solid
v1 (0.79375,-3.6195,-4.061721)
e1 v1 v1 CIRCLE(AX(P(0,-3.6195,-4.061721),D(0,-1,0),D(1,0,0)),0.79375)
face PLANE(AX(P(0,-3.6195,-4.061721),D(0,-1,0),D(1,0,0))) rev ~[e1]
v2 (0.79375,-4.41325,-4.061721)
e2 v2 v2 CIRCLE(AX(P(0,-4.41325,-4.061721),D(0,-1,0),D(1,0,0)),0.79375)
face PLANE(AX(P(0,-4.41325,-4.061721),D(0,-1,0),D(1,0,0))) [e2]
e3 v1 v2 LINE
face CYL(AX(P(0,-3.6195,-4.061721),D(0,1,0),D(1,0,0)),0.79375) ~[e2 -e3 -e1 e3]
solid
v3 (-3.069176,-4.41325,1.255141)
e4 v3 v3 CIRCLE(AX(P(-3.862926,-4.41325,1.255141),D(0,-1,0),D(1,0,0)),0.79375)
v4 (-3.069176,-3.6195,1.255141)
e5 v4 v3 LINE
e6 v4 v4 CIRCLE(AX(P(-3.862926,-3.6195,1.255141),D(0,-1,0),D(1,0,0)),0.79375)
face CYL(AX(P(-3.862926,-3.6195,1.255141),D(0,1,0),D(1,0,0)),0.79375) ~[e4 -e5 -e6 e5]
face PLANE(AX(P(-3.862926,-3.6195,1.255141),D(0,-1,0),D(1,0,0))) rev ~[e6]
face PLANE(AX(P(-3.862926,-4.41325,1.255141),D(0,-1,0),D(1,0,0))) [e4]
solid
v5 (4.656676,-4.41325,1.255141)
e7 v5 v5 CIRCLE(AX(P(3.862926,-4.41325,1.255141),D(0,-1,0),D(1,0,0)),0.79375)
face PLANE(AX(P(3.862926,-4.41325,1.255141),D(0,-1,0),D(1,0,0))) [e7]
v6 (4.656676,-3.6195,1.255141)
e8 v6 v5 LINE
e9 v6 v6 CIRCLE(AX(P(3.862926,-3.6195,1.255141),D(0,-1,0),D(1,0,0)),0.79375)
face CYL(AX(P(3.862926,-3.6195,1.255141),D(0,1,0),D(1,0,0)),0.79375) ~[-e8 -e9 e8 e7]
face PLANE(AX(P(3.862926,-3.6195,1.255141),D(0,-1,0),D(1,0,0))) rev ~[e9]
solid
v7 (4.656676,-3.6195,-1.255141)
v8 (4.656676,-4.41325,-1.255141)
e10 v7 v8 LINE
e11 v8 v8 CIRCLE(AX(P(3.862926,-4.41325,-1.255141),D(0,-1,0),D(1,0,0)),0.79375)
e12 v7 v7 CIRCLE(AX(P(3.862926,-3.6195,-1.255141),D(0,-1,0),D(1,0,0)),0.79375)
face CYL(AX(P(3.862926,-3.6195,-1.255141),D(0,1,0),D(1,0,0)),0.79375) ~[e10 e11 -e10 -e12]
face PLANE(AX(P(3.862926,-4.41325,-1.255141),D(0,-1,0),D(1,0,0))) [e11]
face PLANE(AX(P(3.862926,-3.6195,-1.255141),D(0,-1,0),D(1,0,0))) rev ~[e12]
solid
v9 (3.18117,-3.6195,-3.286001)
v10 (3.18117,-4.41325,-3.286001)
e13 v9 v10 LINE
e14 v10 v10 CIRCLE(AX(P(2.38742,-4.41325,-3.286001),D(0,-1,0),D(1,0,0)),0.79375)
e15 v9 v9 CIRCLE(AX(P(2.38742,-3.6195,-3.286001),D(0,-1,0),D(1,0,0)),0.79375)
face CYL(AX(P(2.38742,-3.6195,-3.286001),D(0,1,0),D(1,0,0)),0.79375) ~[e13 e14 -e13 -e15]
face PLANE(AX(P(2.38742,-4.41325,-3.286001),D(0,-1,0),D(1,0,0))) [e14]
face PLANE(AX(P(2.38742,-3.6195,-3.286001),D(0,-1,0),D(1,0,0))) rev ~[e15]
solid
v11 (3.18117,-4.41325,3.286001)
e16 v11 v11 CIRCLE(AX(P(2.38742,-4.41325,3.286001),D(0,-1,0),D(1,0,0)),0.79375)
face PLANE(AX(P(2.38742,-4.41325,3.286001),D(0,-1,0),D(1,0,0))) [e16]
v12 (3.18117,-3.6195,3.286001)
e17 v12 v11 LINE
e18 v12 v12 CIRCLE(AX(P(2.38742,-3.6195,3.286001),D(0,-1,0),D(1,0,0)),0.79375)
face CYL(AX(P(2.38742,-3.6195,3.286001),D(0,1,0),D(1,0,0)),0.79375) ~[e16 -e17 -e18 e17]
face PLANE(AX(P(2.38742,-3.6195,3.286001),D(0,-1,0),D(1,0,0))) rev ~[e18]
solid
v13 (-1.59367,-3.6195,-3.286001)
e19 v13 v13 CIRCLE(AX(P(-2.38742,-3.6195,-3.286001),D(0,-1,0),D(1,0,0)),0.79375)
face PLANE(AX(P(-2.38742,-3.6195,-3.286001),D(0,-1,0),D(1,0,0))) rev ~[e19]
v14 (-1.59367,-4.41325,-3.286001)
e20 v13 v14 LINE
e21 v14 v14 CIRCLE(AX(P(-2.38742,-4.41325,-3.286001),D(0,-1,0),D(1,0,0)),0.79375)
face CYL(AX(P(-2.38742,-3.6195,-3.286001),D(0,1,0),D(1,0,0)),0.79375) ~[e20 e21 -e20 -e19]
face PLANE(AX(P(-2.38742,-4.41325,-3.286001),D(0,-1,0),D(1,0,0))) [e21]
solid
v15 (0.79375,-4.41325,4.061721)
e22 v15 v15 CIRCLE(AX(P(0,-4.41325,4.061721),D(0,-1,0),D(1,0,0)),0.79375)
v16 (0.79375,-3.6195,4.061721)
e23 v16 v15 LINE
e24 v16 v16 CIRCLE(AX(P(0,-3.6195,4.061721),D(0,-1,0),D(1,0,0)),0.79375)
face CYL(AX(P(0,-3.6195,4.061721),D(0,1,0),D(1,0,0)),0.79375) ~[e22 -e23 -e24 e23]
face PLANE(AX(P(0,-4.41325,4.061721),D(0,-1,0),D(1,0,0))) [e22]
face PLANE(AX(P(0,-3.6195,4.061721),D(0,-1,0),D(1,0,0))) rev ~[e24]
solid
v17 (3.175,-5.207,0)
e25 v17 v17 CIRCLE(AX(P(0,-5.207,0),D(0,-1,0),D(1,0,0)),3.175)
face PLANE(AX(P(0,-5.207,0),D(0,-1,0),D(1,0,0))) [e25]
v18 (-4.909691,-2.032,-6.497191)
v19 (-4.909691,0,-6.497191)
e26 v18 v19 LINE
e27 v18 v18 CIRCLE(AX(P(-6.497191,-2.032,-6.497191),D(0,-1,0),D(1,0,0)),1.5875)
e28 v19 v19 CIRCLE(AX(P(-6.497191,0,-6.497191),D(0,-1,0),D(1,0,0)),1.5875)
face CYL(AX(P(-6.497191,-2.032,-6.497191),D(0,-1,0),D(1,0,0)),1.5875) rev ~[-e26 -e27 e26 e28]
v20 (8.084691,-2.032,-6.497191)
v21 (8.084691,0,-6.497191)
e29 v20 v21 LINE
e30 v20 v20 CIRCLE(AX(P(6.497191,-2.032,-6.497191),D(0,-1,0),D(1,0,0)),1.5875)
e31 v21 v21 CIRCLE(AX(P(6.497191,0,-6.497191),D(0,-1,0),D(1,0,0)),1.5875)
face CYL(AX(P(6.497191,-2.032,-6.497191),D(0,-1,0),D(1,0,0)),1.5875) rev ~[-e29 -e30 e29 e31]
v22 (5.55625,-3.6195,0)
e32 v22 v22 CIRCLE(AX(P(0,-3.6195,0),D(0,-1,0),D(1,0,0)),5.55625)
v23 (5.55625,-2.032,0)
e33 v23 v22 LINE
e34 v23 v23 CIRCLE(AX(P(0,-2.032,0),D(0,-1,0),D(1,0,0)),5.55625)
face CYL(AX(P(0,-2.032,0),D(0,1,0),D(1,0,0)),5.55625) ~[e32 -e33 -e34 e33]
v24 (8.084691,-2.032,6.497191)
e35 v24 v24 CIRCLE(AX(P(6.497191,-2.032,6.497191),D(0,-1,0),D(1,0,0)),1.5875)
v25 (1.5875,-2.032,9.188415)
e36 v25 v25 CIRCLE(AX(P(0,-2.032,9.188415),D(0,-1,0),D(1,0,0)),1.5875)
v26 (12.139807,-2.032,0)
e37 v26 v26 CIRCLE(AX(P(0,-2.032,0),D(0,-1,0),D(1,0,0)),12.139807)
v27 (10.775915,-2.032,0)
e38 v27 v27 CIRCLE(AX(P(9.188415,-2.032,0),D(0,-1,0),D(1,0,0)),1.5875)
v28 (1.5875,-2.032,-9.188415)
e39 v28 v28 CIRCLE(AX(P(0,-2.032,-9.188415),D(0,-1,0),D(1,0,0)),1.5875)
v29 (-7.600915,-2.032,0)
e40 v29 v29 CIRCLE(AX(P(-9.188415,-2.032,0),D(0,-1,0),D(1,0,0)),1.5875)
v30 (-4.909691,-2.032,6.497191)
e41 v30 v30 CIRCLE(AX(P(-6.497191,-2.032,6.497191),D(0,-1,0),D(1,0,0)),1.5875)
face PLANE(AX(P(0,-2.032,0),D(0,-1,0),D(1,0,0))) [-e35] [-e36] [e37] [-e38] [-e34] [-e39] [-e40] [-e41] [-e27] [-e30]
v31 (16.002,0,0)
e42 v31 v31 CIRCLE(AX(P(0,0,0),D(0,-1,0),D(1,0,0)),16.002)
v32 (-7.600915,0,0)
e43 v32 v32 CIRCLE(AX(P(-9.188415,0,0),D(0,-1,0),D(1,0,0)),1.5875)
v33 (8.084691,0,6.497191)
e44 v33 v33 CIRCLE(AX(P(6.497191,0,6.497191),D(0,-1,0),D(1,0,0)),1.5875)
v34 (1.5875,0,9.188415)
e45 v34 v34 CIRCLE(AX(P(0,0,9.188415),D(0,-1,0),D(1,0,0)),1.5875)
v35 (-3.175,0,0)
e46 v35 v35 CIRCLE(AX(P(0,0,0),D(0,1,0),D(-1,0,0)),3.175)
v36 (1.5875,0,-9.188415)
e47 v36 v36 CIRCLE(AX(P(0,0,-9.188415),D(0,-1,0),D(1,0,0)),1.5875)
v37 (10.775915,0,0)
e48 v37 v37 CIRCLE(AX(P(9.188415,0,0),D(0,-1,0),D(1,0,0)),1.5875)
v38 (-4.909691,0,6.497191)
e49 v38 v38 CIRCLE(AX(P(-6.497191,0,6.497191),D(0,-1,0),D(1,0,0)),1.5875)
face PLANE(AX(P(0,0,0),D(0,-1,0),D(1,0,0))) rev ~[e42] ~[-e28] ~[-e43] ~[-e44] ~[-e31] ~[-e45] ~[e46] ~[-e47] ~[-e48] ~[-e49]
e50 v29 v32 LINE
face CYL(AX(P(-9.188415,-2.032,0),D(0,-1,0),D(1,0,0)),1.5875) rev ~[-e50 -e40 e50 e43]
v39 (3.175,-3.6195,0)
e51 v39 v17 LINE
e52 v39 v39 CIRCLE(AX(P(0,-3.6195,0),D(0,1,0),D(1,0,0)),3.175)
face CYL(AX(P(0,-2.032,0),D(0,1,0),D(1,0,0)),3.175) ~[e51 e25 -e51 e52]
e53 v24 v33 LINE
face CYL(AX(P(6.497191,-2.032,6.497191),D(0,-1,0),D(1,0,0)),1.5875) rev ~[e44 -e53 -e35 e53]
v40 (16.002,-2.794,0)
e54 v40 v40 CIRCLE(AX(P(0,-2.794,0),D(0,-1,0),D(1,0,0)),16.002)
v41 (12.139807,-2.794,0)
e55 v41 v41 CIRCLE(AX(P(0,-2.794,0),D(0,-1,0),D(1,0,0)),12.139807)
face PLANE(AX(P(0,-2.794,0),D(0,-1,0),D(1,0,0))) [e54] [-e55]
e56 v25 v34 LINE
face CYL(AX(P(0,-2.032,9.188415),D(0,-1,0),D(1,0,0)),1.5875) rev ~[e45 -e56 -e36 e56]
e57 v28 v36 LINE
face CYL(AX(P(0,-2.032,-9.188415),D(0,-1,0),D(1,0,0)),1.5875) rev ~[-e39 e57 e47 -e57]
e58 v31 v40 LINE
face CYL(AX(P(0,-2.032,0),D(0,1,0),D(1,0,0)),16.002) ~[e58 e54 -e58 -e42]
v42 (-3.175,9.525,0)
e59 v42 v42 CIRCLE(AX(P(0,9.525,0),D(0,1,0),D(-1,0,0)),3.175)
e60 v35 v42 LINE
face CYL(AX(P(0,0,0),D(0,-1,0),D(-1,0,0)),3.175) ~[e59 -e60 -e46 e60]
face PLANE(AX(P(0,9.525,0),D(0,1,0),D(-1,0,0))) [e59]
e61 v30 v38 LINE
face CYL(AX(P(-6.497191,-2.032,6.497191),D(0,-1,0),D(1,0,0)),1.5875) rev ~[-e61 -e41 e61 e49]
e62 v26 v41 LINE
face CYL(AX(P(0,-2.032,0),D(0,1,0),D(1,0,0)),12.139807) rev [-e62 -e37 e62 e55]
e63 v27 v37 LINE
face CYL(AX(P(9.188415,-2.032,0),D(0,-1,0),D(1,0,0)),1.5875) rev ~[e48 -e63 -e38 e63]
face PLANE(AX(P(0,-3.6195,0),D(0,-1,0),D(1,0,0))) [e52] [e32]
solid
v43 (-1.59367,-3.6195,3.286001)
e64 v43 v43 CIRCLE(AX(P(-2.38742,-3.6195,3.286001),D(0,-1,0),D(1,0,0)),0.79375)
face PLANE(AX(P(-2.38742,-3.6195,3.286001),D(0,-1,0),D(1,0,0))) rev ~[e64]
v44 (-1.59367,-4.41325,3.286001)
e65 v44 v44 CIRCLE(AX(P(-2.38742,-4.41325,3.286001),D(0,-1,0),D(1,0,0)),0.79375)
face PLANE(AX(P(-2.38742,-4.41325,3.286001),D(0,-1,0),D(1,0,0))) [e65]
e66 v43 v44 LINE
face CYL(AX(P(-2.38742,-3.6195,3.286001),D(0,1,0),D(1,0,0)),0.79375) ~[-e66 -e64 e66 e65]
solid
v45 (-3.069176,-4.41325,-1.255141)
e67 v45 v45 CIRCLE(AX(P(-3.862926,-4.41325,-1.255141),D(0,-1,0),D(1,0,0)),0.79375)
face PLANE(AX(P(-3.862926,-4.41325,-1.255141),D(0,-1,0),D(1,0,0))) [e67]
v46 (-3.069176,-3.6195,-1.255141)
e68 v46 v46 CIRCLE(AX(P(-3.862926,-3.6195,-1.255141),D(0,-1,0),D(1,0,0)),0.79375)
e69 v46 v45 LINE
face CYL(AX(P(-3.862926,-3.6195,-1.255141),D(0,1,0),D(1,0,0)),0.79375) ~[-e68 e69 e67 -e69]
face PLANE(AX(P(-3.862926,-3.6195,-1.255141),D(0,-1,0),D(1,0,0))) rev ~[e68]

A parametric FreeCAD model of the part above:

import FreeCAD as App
import Part
import Sketcher

V = App.Vector
Q = App.Units.Quantity

doc = App.newDocument("Part")
body = doc.addObject("PartDesign::Body", "Body")

# Sketch on XZ plane
sketch1 = doc.addObject("Sketcher::SketchObject", "Sketch")
body.addObject(sketch1)
sketch1.AttachmentSupport = (doc.XZ_Plane, [""])
sketch1.MapMode = "FlatFace"
sketch1.addGeometry(Part.Circle(V(0, 0, 0), V(0, 0, 1), 16), False)
sketch1.addConstraint(Sketcher.Constraint("Coincident", 0, 3, -1, 1))
sketch1.addConstraint(Sketcher.Constraint("Diameter", 0, Q("1.26 in")))
pad1 = doc.addObject("PartDesign::Pad", "Pad")
body.addObject(pad1)
pad1.Profile = sketch1
pad1.Length = Q("0.08 in")

# Sketch on XZ plane
sketch2 = doc.addObject("Sketcher::SketchObject", "Sketch001")
body.addObject(sketch2)
sketch2.AttachmentSupport = (doc.XZ_Plane, [""])
sketch2.MapMode = "FlatFace"
sketch2.AttachmentOffset = App.Placement(V(0, 0, 0.08 * 25.4), App.Rotation())
sketch2.addGeometry(Part.Circle(V(0, 9.2, 0), V(0, 0, 1), 1.6), False)
sketch2.addGeometry(Part.Circle(V(6.5, 6.5, 0), V(0, 0, 1), 1.6), False)
sketch2.addGeometry(Part.Circle(V(9.2, 0, 0), V(0, 0, 1), 1.6), False)
sketch2.addGeometry(Part.Circle(V(6.5, -6.5, 0), V(0, 0, 1), 1.6), False)
sketch2.addGeometry(Part.Circle(V(0, -9.2, 0), V(0, 0, 1), 1.6), False)
sketch2.addGeometry(Part.Circle(V(-6.5, -6.5, 0), V(0, 0, 1), 1.6), False)
sketch2.addGeometry(Part.Circle(V(-9.2, 0, 0), V(0, 0, 1), 1.6), False)
sketch2.addGeometry(Part.Circle(V(-6.5, 6.5, 0), V(0, 0, 1), 1.6), False)
sketch2.addConstraint(Sketcher.Constraint("Equal", 0, 1))
sketch2.addConstraint(Sketcher.Constraint("Equal", 1, 2))
sketch2.addConstraint(Sketcher.Constraint("Equal", 2, 3))
sketch2.addConstraint(Sketcher.Constraint("Equal", 3, 4))
sketch2.addConstraint(Sketcher.Constraint("Equal", 4, 5))
sketch2.addConstraint(Sketcher.Constraint("Equal", 5, 6))
sketch2.addConstraint(Sketcher.Constraint("Equal", 6, 7))
sketch2.addConstraint(Sketcher.Constraint("Symmetric", 0, 3, 4, 3, -1, 1))
sketch2.addConstraint(Sketcher.Constraint("Symmetric", 1, 3, 5, 3, -1, 1))
sketch2.addConstraint(Sketcher.Constraint("Symmetric", 2, 3, 6, 3, -1, 1))
sketch2.addConstraint(Sketcher.Constraint("Symmetric", 3, 3, 7, 3, -1, 1))
sketch2.addConstraint(Sketcher.Constraint("Symmetric", 3, 3, 5, 3, -2))
sketch2.addConstraint(Sketcher.Constraint("PointOnObject", 0, 3, -2))
sketch2.addConstraint(Sketcher.Constraint("PointOnObject", 2, 3, -1))
sketch2.addConstraint(Sketcher.Constraint("Diameter", 0, Q("0.125 in")))
sketch2.addConstraint(Sketcher.Constraint("DistanceX", -1, 1, 1, 3, 6.497191))
sketch2.addConstraint(Sketcher.Constraint("DistanceY", -1, 1, 1, 3, 6.497191))
sketch2.addConstraint(Sketcher.Constraint("DistanceY", 4, 3, 0, 3, 18.37683))
sketch2.addConstraint(Sketcher.Constraint("DistanceX", -1, 1, 2, 3, 9.188415))
pocket1 = doc.addObject("PartDesign::Pocket", "Pocket")
body.addObject(pocket1)
pocket1.Profile = sketch2
pocket1.Length = Q("0.8 in")

# Sketch on XZ plane
sketch3 = doc.addObject("Sketcher::SketchObject", "Sketch002")
body.addObject(sketch3)
sketch3.AttachmentSupport = (doc.XZ_Plane, [""])
sketch3.MapMode = "FlatFace"
sketch3.AttachmentOffset = App.Placement(V(0, 0, 0.08 * 25.4), App.Rotation())
sketch3.addGeometry(Part.Circle(V(0, 0, 0), V(0, 0, 1), 3.2), False)
sketch3.addConstraint(Sketcher.Constraint("Coincident", 0, 3, -1, 1))
sketch3.addConstraint(Sketcher.Constraint("Diameter", 0, Q("0.25 in")))
pad2 = doc.addObject("PartDesign::Pad", "Pad001")
body.addObject(pad2)
pad2.Profile = sketch3
pad2.Length = Q("0.125 in")

# Sketch on XZ plane
sketch4 = doc.addObject("Sketcher::SketchObject", "Sketch003")
body.addObject(sketch4)
sketch4.AttachmentSupport = (doc.XZ_Plane, [""])
sketch4.MapMode = "FlatFace"
sketch4.AttachmentOffset = App.Placement(V(0, 0, 0.08 * 25.4), App.Rotation())
sketch4.addGeometry(Part.Circle(V(0, 0, 0), V(0, 0, 1), 6), False)
sketch4.addConstraint(Sketcher.Constraint("Coincident", 0, 3, -1, 1))
sketch4.addConstraint(Sketcher.Constraint("Diameter", 0, Q("0.4375 in")))
pad3 = doc.addObject("PartDesign::Pad", "Pad002")
body.addObject(pad3)
pad3.Profile = sketch4
pad3.Length = Q("0.0625 in")

# Sketch on XZ plane
sketch5 = doc.addObject("Sketcher::SketchObject", "Sketch004")
body.addObject(sketch5)
sketch5.AttachmentSupport = (doc.XZ_Plane, [""])
sketch5.MapMode = "FlatFace"
sketch5.addGeometry(Part.Circle(V(0, 0, 0), V(0, 0, 1), 3.2), False)
sketch5.addConstraint(Sketcher.Constraint("Coincident", 0, 3, -1, 1))
sketch5.addConstraint(Sketcher.Constraint("Diameter", 0, Q("0.25 in")))
pad4 = doc.addObject("PartDesign::Pad", "Pad003")
body.addObject(pad4)
pad4.Profile = sketch5
pad4.Length = Q("0.375 in")
pad4.Reversed = True

# Sketch on XZ plane
sketch6 = doc.addObject("Sketcher::SketchObject", "Sketch005")
body.addObject(sketch6)
sketch6.AttachmentSupport = (doc.XZ_Plane, [""])
sketch6.MapMode = "FlatFace"
sketch6.AttachmentOffset = App.Placement(V(0, 0, 0.08 * 25.4), App.Rotation())
sketch6.addGeometry(Part.Circle(V(0, 0, 0), V(0, 0, 1), 16), False)
sketch6.addGeometry(Part.Circle(V(0, 0, 0), V(0, 0, 1), 12), False)
sketch6.addConstraint(Sketcher.Constraint("Coincident", 0, 3, -1, 1))
sketch6.addConstraint(Sketcher.Constraint("Coincident", 1, 3, -1, 1))
sketch6.addConstraint(Sketcher.Constraint("Diameter", 0, Q("1.26 in")))
sketch6.addConstraint(Sketcher.Constraint("Diameter", 1, 24.279614))
pad5 = doc.addObject("PartDesign::Pad", "Pad004")
body.addObject(pad5)
pad5.Profile = sketch6
pad5.Length = Q("0.03 in")
body2 = doc.addObject("PartDesign::Body", "Body001")

# Sketch on XZ plane
sketch7 = doc.addObject("Sketcher::SketchObject", "Sketch006")
body2.addObject(sketch7)
sketch7.AttachmentSupport = (doc.getObject("XZ_Plane001"), [""])
sketch7.MapMode = "FlatFace"
sketch7.AttachmentOffset = App.Placement(V(0, 0, 0.1425 * 25.4), App.Rotation())
sketch7.addGeometry(Part.Circle(V(0, 4.1, 0), V(0, 0, 1), 0.8), False)
sketch7.addConstraint(Sketcher.Constraint("PointOnObject", 0, 3, -2))
sketch7.addConstraint(Sketcher.Constraint("Diameter", 0, Q("0.0625 in")))
sketch7.addConstraint(Sketcher.Constraint("DistanceY", -1, 1, 0, 3, 4.061721))
pad6 = doc.addObject("PartDesign::Pad", "Pad005")
body2.addObject(pad6)
pad6.Profile = sketch7
pad6.Length = Q("0.03125 in")
body3 = doc.addObject("PartDesign::Body", "Body002")

# Sketch on XZ plane
sketch8 = doc.addObject("Sketcher::SketchObject", "Sketch007")
body3.addObject(sketch8)
sketch8.AttachmentSupport = (doc.getObject("XZ_Plane002"), [""])
sketch8.MapMode = "FlatFace"
sketch8.AttachmentOffset = App.Placement(V(0, 0, 0.1425 * 25.4), App.Rotation())
sketch8.addGeometry(Part.Circle(V(2.4, 3.3, 0), V(0, 0, 1), 0.8), False)
sketch8.addConstraint(Sketcher.Constraint("Diameter", 0, Q("0.0625 in")))
sketch8.addConstraint(Sketcher.Constraint("DistanceY", -1, 1, 0, 3, 3.286001))
sketch8.addConstraint(Sketcher.Constraint("DistanceX", -1, 1, 0, 3, 2.38742))
pad7 = doc.addObject("PartDesign::Pad", "Pad006")
body3.addObject(pad7)
pad7.Profile = sketch8
pad7.Length = Q("0.03125 in")
body4 = doc.addObject("PartDesign::Body", "Body003")

# Sketch on XZ plane
sketch9 = doc.addObject("Sketcher::SketchObject", "Sketch008")
body4.addObject(sketch9)
sketch9.AttachmentSupport = (doc.getObject("XZ_Plane003"), [""])
sketch9.MapMode = "FlatFace"
sketch9.AttachmentOffset = App.Placement(V(0, 0, 0.1425 * 25.4), App.Rotation())
sketch9.addGeometry(Part.Circle(V(3.9, 1.3, 0), V(0, 0, 1), 0.8), False)
sketch9.addConstraint(Sketcher.Constraint("Diameter", 0, Q("0.0625 in")))
sketch9.addConstraint(Sketcher.Constraint("DistanceY", -1, 1, 0, 3, 1.255141))
sketch9.addConstraint(Sketcher.Constraint("DistanceX", -1, 1, 0, 3, 3.862926))
pad8 = doc.addObject("PartDesign::Pad", "Pad007")
body4.addObject(pad8)
pad8.Profile = sketch9
pad8.Length = Q("0.03125 in")
body5 = doc.addObject("PartDesign::Body", "Body004")

# Sketch on XZ plane
sketch10 = doc.addObject("Sketcher::SketchObject", "Sketch009")
body5.addObject(sketch10)
sketch10.AttachmentSupport = (doc.getObject("XZ_Plane004"), [""])
sketch10.MapMode = "FlatFace"
sketch10.AttachmentOffset = App.Placement(V(0, 0, 0.1425 * 25.4), App.Rotation())
sketch10.addGeometry(Part.Circle(V(3.9, -1.3, 0), V(0, 0, 1), 0.8), False)
sketch10.addConstraint(Sketcher.Constraint("Diameter", 0, Q("0.0625 in")))
sketch10.addConstraint(Sketcher.Constraint("DistanceY", 0, 3, -1, 1, 1.255141))
sketch10.addConstraint(Sketcher.Constraint("DistanceX", -1, 1, 0, 3, 3.862926))
pad9 = doc.addObject("PartDesign::Pad", "Pad008")
body5.addObject(pad9)
pad9.Profile = sketch10
pad9.Length = Q("0.03125 in")
body6 = doc.addObject("PartDesign::Body", "Body005")

# Sketch on XZ plane
sketch11 = doc.addObject("Sketcher::SketchObject", "Sketch010")
body6.addObject(sketch11)
sketch11.AttachmentSupport = (doc.getObject("XZ_Plane005"), [""])
sketch11.MapMode = "FlatFace"
sketch11.AttachmentOffset = App.Placement(V(0, 0, 0.1425 * 25.4), App.Rotation())
sketch11.addGeometry(Part.Circle(V(2.4, -3.3, 0), V(0, 0, 1), 0.8), False)
sketch11.addConstraint(Sketcher.Constraint("Diameter", 0, Q("0.0625 in")))
sketch11.addConstraint(Sketcher.Constraint("DistanceY", 0, 3, -1, 1, 3.286001))
sketch11.addConstraint(Sketcher.Constraint("DistanceX", -1, 1, 0, 3, 2.38742))
pad10 = doc.addObject("PartDesign::Pad", "Pad009")
body6.addObject(pad10)
pad10.Profile = sketch11
pad10.Length = Q("0.03125 in")
body7 = doc.addObject("PartDesign::Body", "Body006")

# Sketch on XZ plane
sketch12 = doc.addObject("Sketcher::SketchObject", "Sketch011")
body7.addObject(sketch12)
sketch12.AttachmentSupport = (doc.getObject("XZ_Plane006"), [""])
sketch12.MapMode = "FlatFace"
sketch12.AttachmentOffset = App.Placement(V(0, 0, 0.1425 * 25.4), App.Rotation())
sketch12.addGeometry(Part.Circle(V(0, -4.1, 0), V(0, 0, 1), 0.8), False)
sketch12.addConstraint(Sketcher.Constraint("PointOnObject", 0, 3, -2))
sketch12.addConstraint(Sketcher.Constraint("Diameter", 0, Q("0.0625 in")))
sketch12.addConstraint(Sketcher.Constraint("DistanceY", 0, 3, -1, 1, 4.061721))
pad11 = doc.addObject("PartDesign::Pad", "Pad010")
body7.addObject(pad11)
pad11.Profile = sketch12
pad11.Length = Q("0.03125 in")
body8 = doc.addObject("PartDesign::Body", "Body007")

# Sketch on XZ plane
sketch13 = doc.addObject("Sketcher::SketchObject", "Sketch012")
body8.addObject(sketch13)
sketch13.AttachmentSupport = (doc.getObject("XZ_Plane007"), [""])
sketch13.MapMode = "FlatFace"
sketch13.AttachmentOffset = App.Placement(V(0, 0, 0.1425 * 25.4), App.Rotation())
sketch13.addGeometry(Part.Circle(V(-2.4, -3.3, 0), V(0, 0, 1), 0.8), False)
sketch13.addConstraint(Sketcher.Constraint("Diameter", 0, Q("0.0625 in")))
sketch13.addConstraint(Sketcher.Constraint("DistanceY", 0, 3, -1, 1, 3.286001))
sketch13.addConstraint(Sketcher.Constraint("DistanceX", 0, 3, -1, 1, 2.38742))
pad12 = doc.addObject("PartDesign::Pad", "Pad011")
body8.addObject(pad12)
pad12.Profile = sketch13
pad12.Length = Q("0.03125 in")
body9 = doc.addObject("PartDesign::Body", "Body008")

# Sketch on XZ plane
sketch14 = doc.addObject("Sketcher::SketchObject", "Sketch013")
body9.addObject(sketch14)
sketch14.AttachmentSupport = (doc.getObject("XZ_Plane008"), [""])
sketch14.MapMode = "FlatFace"
sketch14.AttachmentOffset = App.Placement(V(0, 0, 0.1425 * 25.4), App.Rotation())
sketch14.addGeometry(Part.Circle(V(-3.9, -1.3, 0), V(0, 0, 1), 0.8), False)
sketch14.addConstraint(Sketcher.Constraint("Diameter", 0, Q("0.0625 in")))
sketch14.addConstraint(Sketcher.Constraint("DistanceY", 0, 3, -1, 1, 1.255141))
sketch14.addConstraint(Sketcher.Constraint("DistanceX", 0, 3, -1, 1, 3.862926))
pad13 = doc.addObject("PartDesign::Pad", "Pad012")
body9.addObject(pad13)
pad13.Profile = sketch14
pad13.Length = Q("0.03125 in")
body10 = doc.addObject("PartDesign::Body", "Body009")

# Sketch on XZ plane
sketch15 = doc.addObject("Sketcher::SketchObject", "Sketch014")
body10.addObject(sketch15)
sketch15.AttachmentSupport = (doc.getObject("XZ_Plane009"), [""])
sketch15.MapMode = "FlatFace"
sketch15.AttachmentOffset = App.Placement(V(0, 0, 0.1425 * 25.4), App.Rotation())
sketch15.addGeometry(Part.Circle(V(-3.9, 1.3, 0), V(0, 0, 1), 0.8), False)
sketch15.addConstraint(Sketcher.Constraint("Diameter", 0, Q("0.0625 in")))
sketch15.addConstraint(Sketcher.Constraint("DistanceY", -1, 1, 0, 3, 1.255141))
sketch15.addConstraint(Sketcher.Constraint("DistanceX", 0, 3, -1, 1, 3.862926))
pad14 = doc.addObject("PartDesign::Pad", "Pad013")
body10.addObject(pad14)
pad14.Profile = sketch15
pad14.Length = Q("0.03125 in")
body11 = doc.addObject("PartDesign::Body", "Body010")

# Sketch on XZ plane
sketch16 = doc.addObject("Sketcher::SketchObject", "Sketch015")
body11.addObject(sketch16)
sketch16.AttachmentSupport = (doc.getObject("XZ_Plane010"), [""])
sketch16.MapMode = "FlatFace"
sketch16.AttachmentOffset = App.Placement(V(0, 0, 0.1425 * 25.4), App.Rotation())
sketch16.addGeometry(Part.Circle(V(-2.4, 3.3, 0), V(0, 0, 1), 0.8), False)
sketch16.addConstraint(Sketcher.Constraint("Diameter", 0, Q("0.0625 in")))
sketch16.addConstraint(Sketcher.Constraint("DistanceY", -1, 1, 0, 3, 3.286001))
sketch16.addConstraint(Sketcher.Constraint("DistanceX", 0, 3, -1, 1, 2.38742))
pad15 = doc.addObject("PartDesign::Pad", "Pad014")
body11.addObject(pad15)
pad15.Profile = sketch16
pad15.Length = Q("0.03125 in")

doc.recompute()
